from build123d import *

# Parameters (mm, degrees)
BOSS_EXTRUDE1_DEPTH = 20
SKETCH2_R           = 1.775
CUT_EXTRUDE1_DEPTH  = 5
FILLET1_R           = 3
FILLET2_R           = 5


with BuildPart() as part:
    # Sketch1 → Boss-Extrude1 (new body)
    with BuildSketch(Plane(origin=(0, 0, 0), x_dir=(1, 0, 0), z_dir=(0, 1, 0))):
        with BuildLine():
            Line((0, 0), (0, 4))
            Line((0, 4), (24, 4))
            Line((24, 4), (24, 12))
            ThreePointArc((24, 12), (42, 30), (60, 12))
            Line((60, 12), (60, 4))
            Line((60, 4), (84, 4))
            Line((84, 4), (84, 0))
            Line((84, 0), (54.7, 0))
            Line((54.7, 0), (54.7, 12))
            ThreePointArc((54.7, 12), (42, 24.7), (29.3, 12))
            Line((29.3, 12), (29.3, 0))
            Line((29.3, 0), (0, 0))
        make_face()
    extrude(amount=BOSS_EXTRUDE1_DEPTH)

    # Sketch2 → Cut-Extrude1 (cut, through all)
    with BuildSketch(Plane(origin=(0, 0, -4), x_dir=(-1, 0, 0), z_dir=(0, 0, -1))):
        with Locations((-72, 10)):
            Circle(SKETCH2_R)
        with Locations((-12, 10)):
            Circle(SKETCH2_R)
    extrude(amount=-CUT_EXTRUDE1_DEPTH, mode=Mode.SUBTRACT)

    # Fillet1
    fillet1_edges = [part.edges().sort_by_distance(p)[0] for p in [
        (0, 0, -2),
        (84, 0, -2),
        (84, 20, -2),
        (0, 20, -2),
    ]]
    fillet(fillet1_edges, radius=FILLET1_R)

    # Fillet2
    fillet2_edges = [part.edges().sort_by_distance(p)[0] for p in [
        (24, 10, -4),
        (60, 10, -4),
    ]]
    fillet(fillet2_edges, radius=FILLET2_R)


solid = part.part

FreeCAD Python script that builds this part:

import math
import FreeCAD as App
import Part
import Sketcher
from FreeCAD import Vector
Q = App.Units.Quantity


def edges_at(feature, points):
    """Names of the edges that pass closest to the given points."""
    edges = feature.Shape.Edges
    near = lambda p: min(range(len(edges)), key=lambda i: edges[i].distToShape(Part.Vertex(*p))[0])
    return sorted({f"Edge{near(p) + 1}" for p in points})

doc = App.newDocument("Part")
body = doc.addObject("PartDesign::Body", "Body")

# Sketch on XZ plane
sketch1 = doc.addObject("Sketcher::SketchObject", "Sketch")
body.addObject(sketch1)
sketch1.AttachmentSupport = (doc.XZ_Plane, [""])
sketch1.MapMode = "FlatFace"
sketch1.addGeometry([
    Part.LineSegment(Vector(0, -4, 0), Vector(0, 0, 0)),  # 0
    Part.LineSegment(Vector(0, 0, 0), Vector(29.3, 0, 0)),  # 1
    Part.LineSegment(Vector(29.3, 0, 0), Vector(29.3, -12, 0)),  # 2
    Part.ArcOfCircle(Part.Circle(Vector(42, -12, 0), Vector(0, 0, 1), 12.7), math.radians(180), math.radians(360)),  # 3
    Part.LineSegment(Vector(54.7, -12, 0), Vector(54.7, 0, 0)),  # 4
    Part.LineSegment(Vector(54.7, 0, 0), Vector(84, 0, 0)),  # 5
    Part.LineSegment(Vector(84, 0, 0), Vector(84, -4, 0)),  # 6
    Part.LineSegment(Vector(84, -4, 0), Vector(60, -4, 0)),  # 7
    Part.LineSegment(Vector(60, -4, 0), Vector(60, -12, 0)),  # 8
    Part.ArcOfCircle(Part.Circle(Vector(42, -12, 0), Vector(0, 0, 1), 18), math.radians(180), math.radians(360)),  # 9
    Part.LineSegment(Vector(24, -12, 0), Vector(24, -4, 0)),  # 10
    Part.LineSegment(Vector(24, -4, 0), Vector(0, -4, 0)),  # 11
], False)
sketch1.addConstraint([
    Sketcher.Constraint("Coincident", 0, 2, 1, 1),
    Sketcher.Constraint("Coincident", 1, 2, 2, 1),
    Sketcher.Constraint("Tangent", 2, 2, 3, 1),
    Sketcher.Constraint("Tangent", 3, 2, 4, 1),
    Sketcher.Constraint("Coincident", 4, 2, 5, 1),
    Sketcher.Constraint("Coincident", 5, 2, 6, 1),
    Sketcher.Constraint("Coincident", 6, 2, 7, 1),
    Sketcher.Constraint("Coincident", 7, 2, 8, 1),
    Sketcher.Constraint("Tangent", 8, 2, 9, 2),
    Sketcher.Constraint("Tangent", 9, 1, 10, 1),
    Sketcher.Constraint("Coincident", 10, 2, 11, 1),
    Sketcher.Constraint("Coincident", 11, 2, 0, 1),
    Sketcher.Constraint("Vertical", 0),
    Sketcher.Constraint("Horizontal", 1),
    Sketcher.Constraint("Vertical", 2),
    Sketcher.Constraint("Vertical", 4),
    Sketcher.Constraint("Horizontal", 5),
    Sketcher.Constraint("Vertical", 6),
    Sketcher.Constraint("Horizontal", 7),
    Sketcher.Constraint("Vertical", 8),
    Sketcher.Constraint("Vertical", 10),
    Sketcher.Constraint("Horizontal", 11),
    Sketcher.Constraint("Coincident", 0, 2, -1, 1),
    Sketcher.Constraint("Coincident", 9, 3, 3, 3),
    Sketcher.Constraint("PointOnObject", 4, 2, -1),
    Sketcher.Constraint("Horizontal", 7, 2, 10, 2),
    Sketcher.Constraint("Equal", 1, 5),
    Sketcher.Constraint("Radius", 9, Q("18 mm")),
    Sketcher.Constraint("Radius", 3, Q("12.7 mm")),
    Sketcher.Constraint("DistanceX", 7, 2, 7, 1, Q("24 mm")),
    Sketcher.Constraint("DistanceY", 0, 1, 0, 2, Q("4 mm")),
    Sketcher.Constraint("DistanceY", 2, 2, 2, 1, Q("12 mm")),
])
pad1 = doc.addObject("PartDesign::Pad", "Pad")
body.addObject(pad1)
pad1.Profile = sketch1
pad1.Length = 20
pad1.Reversed = True

# Sketch on XY plane
sketch2 = doc.addObject("Sketcher::SketchObject", "Sketch001")
body.addObject(sketch2)
sketch2.AttachmentSupport = (doc.XY_Plane, [""])
sketch2.MapMode = "FlatFace"
sketch2.AttachmentOffset = App.Placement(Vector(0, 0, -4), App.Rotation())
sketch2.addGeometry([
    Part.Circle(Vector(72, 10, 0), Vector(0, 0, 1), 1.8),
    Part.Circle(Vector(12, 10, 0), Vector(0, 0, 1), 1.8),
], False)
sketch2.addConstraint([
    Sketcher.Constraint("Equal", 0, 1),
    Sketcher.Constraint("Horizontal", 0, 3, 1, 3),
    Sketcher.Constraint("Diameter", 0, Q("3.55 mm")),
    Sketcher.Constraint("DistanceX", -1, 1, 0, 3, Q("72 mm")),
    Sketcher.Constraint("DistanceY", -1, 1, 0, 3, Q("10 mm")),
    Sketcher.Constraint("DistanceX", -1, 1, 1, 3, Q("12 mm")),
])
pocket1 = doc.addObject("PartDesign::Pocket", "Pocket")
body.addObject(pocket1)
pocket1.Profile = sketch2
pocket1.Type = "ThroughAll"
pocket1.Reversed = True
doc.recompute()

fillet = doc.addObject("PartDesign::Fillet", "Fillet")
body.addObject(fillet)
fillet.Base = (pocket1, edges_at(pocket1, [
    (0, 0, -2),
    (84, 0, -2),
    (84, 20, -2),
    (0, 20, -2),
]))
fillet.Radius = 3
doc.recompute()

fillet2 = doc.addObject("PartDesign::Fillet", "Fillet001")
body.addObject(fillet2)
fillet2.Base = (fillet, edges_at(fillet, [(24, 10, -4), (60, 10, -4)]))
fillet2.Radius = 5

doc.recompute()
